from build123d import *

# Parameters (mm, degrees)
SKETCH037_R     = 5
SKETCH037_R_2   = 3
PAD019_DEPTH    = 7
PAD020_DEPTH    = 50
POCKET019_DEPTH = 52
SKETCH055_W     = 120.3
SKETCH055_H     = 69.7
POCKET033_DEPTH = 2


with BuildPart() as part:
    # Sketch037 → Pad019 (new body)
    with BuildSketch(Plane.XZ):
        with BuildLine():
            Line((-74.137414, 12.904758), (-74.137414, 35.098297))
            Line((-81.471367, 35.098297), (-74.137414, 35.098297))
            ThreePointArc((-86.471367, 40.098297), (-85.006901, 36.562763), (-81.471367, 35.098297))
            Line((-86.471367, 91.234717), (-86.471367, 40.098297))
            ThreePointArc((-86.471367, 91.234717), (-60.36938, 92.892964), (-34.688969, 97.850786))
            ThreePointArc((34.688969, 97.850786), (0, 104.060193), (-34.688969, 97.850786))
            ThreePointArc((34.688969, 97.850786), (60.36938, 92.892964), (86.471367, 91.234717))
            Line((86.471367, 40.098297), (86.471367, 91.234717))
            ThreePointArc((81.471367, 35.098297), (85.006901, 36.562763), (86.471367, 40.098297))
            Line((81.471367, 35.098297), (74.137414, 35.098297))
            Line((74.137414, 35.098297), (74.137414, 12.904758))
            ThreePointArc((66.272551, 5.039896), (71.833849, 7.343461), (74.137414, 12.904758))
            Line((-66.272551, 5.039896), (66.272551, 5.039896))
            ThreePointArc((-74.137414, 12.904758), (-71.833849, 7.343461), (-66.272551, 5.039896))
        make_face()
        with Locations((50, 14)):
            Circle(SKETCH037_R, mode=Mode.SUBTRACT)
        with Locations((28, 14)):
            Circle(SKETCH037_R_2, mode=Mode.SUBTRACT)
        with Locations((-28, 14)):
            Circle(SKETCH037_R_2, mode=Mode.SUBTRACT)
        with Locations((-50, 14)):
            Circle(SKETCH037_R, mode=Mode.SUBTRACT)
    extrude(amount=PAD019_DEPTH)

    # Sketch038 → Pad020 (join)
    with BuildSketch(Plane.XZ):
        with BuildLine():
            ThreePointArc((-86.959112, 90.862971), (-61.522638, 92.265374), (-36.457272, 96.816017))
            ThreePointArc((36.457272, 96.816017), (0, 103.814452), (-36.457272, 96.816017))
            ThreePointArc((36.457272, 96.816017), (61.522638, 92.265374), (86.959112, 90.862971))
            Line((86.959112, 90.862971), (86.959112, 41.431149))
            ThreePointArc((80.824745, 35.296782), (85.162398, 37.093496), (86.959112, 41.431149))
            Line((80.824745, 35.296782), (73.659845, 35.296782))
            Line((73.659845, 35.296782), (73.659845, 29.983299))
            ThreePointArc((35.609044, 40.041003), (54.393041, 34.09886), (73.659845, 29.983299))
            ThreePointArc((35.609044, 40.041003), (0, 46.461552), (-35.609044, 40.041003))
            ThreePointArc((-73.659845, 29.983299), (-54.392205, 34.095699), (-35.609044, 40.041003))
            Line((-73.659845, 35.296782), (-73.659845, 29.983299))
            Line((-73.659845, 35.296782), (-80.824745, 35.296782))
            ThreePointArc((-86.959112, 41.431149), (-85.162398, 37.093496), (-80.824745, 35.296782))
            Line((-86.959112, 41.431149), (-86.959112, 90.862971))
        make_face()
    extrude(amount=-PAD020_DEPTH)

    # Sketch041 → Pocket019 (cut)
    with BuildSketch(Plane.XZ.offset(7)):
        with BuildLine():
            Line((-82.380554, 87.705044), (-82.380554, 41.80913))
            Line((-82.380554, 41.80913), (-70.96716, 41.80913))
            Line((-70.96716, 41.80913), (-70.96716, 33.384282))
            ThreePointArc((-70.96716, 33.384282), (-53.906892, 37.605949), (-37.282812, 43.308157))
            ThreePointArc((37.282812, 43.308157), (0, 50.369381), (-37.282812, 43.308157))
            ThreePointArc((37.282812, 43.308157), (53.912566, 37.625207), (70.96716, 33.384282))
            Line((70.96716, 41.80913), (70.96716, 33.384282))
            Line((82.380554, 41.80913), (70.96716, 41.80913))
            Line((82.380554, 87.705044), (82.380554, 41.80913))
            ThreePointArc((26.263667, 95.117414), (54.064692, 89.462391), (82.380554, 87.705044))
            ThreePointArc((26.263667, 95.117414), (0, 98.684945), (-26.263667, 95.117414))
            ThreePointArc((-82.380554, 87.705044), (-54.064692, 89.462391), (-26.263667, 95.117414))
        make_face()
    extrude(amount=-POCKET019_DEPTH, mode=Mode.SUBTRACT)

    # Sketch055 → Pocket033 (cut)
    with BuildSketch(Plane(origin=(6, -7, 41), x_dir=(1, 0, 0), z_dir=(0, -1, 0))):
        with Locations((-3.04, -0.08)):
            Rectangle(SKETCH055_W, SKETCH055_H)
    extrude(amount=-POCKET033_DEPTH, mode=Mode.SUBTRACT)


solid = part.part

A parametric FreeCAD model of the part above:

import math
import FreeCAD as App
import Part
import Sketcher

V = App.Vector
Q = App.Units.Quantity


def add_polygon(sketch, points):
    """Adds a closed chain of lines whose ends are joined by coincident constraints."""
    first, n = sketch.GeometryCount, len(points)
    for a, b in zip(points, points[1:] + points[:1]):
        sketch.addGeometry(Part.LineSegment(App.Vector(*a, 0), App.Vector(*b, 0)), False)
    for i in range(n):
        sketch.addConstraint(Sketcher.Constraint("Coincident", first + i, 2, first + (i + 1) % n, 1))

doc = App.newDocument("Part")
params = doc.addObject("Spreadsheet::Sheet", "Params")
for row, (alias, value) in enumerate([
    ("sketch1_diameter", "10 mm"),
    ("sketch1_diameter2", "6 mm"),
    ("pad1_length", "7 mm"),
    ("pad2_length", "50 mm"),
    ("pocket1_length", "52 mm"),
    ("sketch4_width", "120.3 mm"),
    ("sketch4_height", "69.7 mm"),
    ("pocket2_length", "2 mm"),
], start=1):
    params.set(f"A{row}", alias)
    params.set(f"B{row}", "=" + value)
    params.setAlias(f"B{row}", alias)

body = doc.addObject("PartDesign::Body", "Body")

sketch1 = body.newObject("Sketcher::SketchObject", "Sketch")
sketch1.AttachmentSupport = (doc.getObject("XZ_Plane"), [""])
sketch1.MapMode = "FlatFace"
sketch1.addGeometry(Part.LineSegment(V(-74.137414, 35.098297, 0), V(-74.137414, 12.904758, 0)), False)
sketch1.addGeometry(Part.ArcOfCircle(Part.Circle(V(-66.272551, 12.904759, 0), V(0, 0, 1), 7.864863), math.radians(-179.999994), math.radians(-89.999999)), False)
sketch1.addGeometry(Part.LineSegment(V(-66.272551, 5.039896, 0), V(66.272551, 5.039896, 0)), False)
sketch1.addGeometry(Part.ArcOfCircle(Part.Circle(V(66.272551, 12.904759, 0), V(0, 0, 1), 7.864863), math.radians(-90.000001), math.radians(-0.000006)), False)
sketch1.addGeometry(Part.LineSegment(V(74.137414, 12.904758, 0), V(74.137414, 35.098297, 0)), False)
sketch1.addGeometry(Part.LineSegment(V(74.137414, 35.098297, 0), V(81.471367, 35.098297, 0)), False)
sketch1.addGeometry(Part.ArcOfCircle(Part.Circle(V(81.471367, 40.098297, 0), V(0, 0, 1), 5), math.radians(-90.000004), math.radians(0.000004)), False)
sketch1.addGeometry(Part.LineSegment(V(86.471367, 40.098297, 0), V(86.471367, 91.234717, 0)), False)
sketch1.addGeometry(Part.ArcOfCircle(Part.Circle(V(86.432353, 296.881655, 0), V(0, 0, 1), 205.646941), math.radians(-104.572965), math.radians(-89.98913)), False)
sketch1.addGeometry(Part.ArcOfCircle(Part.Circle(V(0, 4.060201, 0), V(0, 0, 1), 99.999992), math.radians(69.702806), math.radians(110.297194)), False)
sketch1.addGeometry(Part.ArcOfCircle(Part.Circle(V(-86.432353, 296.881655, 0), V(0, 0, 1), 205.646941), math.radians(-90.01087), math.radians(-75.427035)), False)
sketch1.addGeometry(Part.LineSegment(V(-86.471367, 91.234717, 0), V(-86.471367, 40.098297, 0)), False)
sketch1.addGeometry(Part.ArcOfCircle(Part.Circle(V(-81.471367, 40.098297, 0), V(0, 0, 1), 5), math.radians(179.999996), math.radians(270.000004)), False)
sketch1.addGeometry(Part.LineSegment(V(-81.471367, 35.098297, 0), V(-74.137414, 35.098297, 0)), False)
sketch1.addGeometry(Part.Circle(V(50, 14, 0), V(0, 0, 1), 5), False)
sketch1.addGeometry(Part.Circle(V(28, 14, 0), V(0, 0, 1), 3), False)
sketch1.addGeometry(Part.Circle(V(-28, 14, 0), V(0, 0, 1), 3), False)
sketch1.addGeometry(Part.Circle(V(-50, 14, 0), V(0, 0, 1), 5), False)
sketch1.addConstraint(Sketcher.Constraint("Tangent", 0, 2, 1, 1))
sketch1.addConstraint(Sketcher.Constraint("Tangent", 1, 2, 2, 1))
sketch1.addConstraint(Sketcher.Constraint("Tangent", 2, 2, 3, 1))
sketch1.addConstraint(Sketcher.Constraint("Tangent", 3, 2, 4, 1))
sketch1.addConstraint(Sketcher.Constraint("Coincident", 4, 2, 5, 1))
sketch1.addConstraint(Sketcher.Constraint("Tangent", 5, 2, 6, 1))
sketch1.addConstraint(Sketcher.Constraint("Tangent", 6, 2, 7, 1))
sketch1.addConstraint(Sketcher.Constraint("Coincident", 7, 2, 8, 2))
sketch1.addConstraint(Sketcher.Constraint("Coincident", 8, 1, 9, 1))
sketch1.addConstraint(Sketcher.Constraint("Coincident", 9, 2, 10, 2))
sketch1.addConstraint(Sketcher.Constraint("Coincident", 10, 1, 11, 1))
sketch1.addConstraint(Sketcher.Constraint("Tangent", 11, 2, 12, 1))
sketch1.addConstraint(Sketcher.Constraint("Tangent", 12, 2, 13, 1))
sketch1.addConstraint(Sketcher.Constraint("Coincident", 13, 2, 0, 1))
sketch1.addConstraint(Sketcher.Constraint("Vertical", 0))
sketch1.addConstraint(Sketcher.Constraint("Horizontal", 2))
sketch1.addConstraint(Sketcher.Constraint("Vertical", 4))
sketch1.addConstraint(Sketcher.Constraint("Horizontal", 5))
sketch1.addConstraint(Sketcher.Constraint("Vertical", 7))
sketch1.addConstraint(Sketcher.Constraint("Vertical", 11))
sketch1.addConstraint(Sketcher.Constraint("Horizontal", 13))
sketch1.addConstraint(Sketcher.Constraint("Equal", 1, 3))
sketch1.addConstraint(Sketcher.Constraint("Equal", 8, 10))
sketch1.addConstraint(Sketcher.Constraint("Equal", 6, 12))
sketch1.addConstraint(Sketcher.Constraint("Equal", 12, 14))
sketch1.addConstraint(Sketcher.Constraint("Equal", 15, 16))
sketch1.addConstraint(Sketcher.Constraint("Equal", 14, 17))
sketch1.addConstraint(Sketcher.Constraint("Symmetric", 8, 3, 10, 3, -2))
sketch1.addConstraint(Sketcher.Constraint("Symmetric", 6, 3, 12, 3, -2))
sketch1.addConstraint(Sketcher.Constraint("Symmetric", 15, 3, 16, 3, -2))
sketch1.addConstraint(Sketcher.Constraint("Symmetric", 14, 3, 17, 3, -2))
sketch1.addConstraint(Sketcher.Constraint("PointOnObject", 9, 3, -2))
sketch1.addConstraint(Sketcher.Constraint("Horizontal", 14, 3, 15, 3))
sketch1.addConstraint(Sketcher.Constraint("Equal", 5, 13))
sketch1.addConstraint(Sketcher.Constraint("Diameter", 14, Q("10 mm")))
sketch1.addConstraint(Sketcher.Constraint("Diameter", 15, Q("6 mm")))
sketch1.addConstraint(Sketcher.Constraint("DistanceX", -1, 1, 14, 3, Q("50 mm")))
sketch1.addConstraint(Sketcher.Constraint("DistanceY", -1, 1, 14, 3, Q("14 mm")))
sketch1.addConstraint(Sketcher.Constraint("DistanceX", -1, 1, 15, 3, Q("28 mm")))
sketch1.addConstraint(Sketcher.Constraint("Radius", 8, Q("205.646941 mm")))
sketch1.addConstraint(Sketcher.Constraint("Radius", 1, Q("7.864863 mm")))
sketch1.addConstraint(Sketcher.Constraint("Radius", 9, Q("99.999992 mm")))
sketch1.addConstraint(Sketcher.Constraint("DistanceY", 0, 2, 0, 1, Q("22.193539 mm")))
sketch1.addConstraint(Sketcher.Constraint("DistanceY", 7, 1, 7, 2, Q("51.13642 mm")))
sketch1.addConstraint(Sketcher.Constraint("DistanceY", -1, 1, 9, 3, Q("4.060201 mm")))
sketch1.addConstraint(Sketcher.Constraint("DistanceX", 8, 1, 6, 3, Q("46.782398 mm")))
sketch1.addConstraint(Sketcher.Constraint("DistanceX", 2, 1, 2, 2, Q("132.545102 mm")))
sketch1.addConstraint(Sketcher.Constraint("DistanceX", 5, 1, 5, 2, Q("7.333953 mm")))
sketch1.addConstraint(Sketcher.Constraint("DistanceY", -1, 1, 1, 3, Q("12.904759 mm")))
sketch1.setExpression("Constraints[34]", "Params.sketch1_diameter")
sketch1.setExpression("Constraints[35]", "Params.sketch1_diameter2")
pad1 = body.newObject("PartDesign::Pad", "Pad")
pad1.Profile = sketch1
pad1.setExpression("Length", "Params.pad1_length")

sketch2 = body.newObject("Sketcher::SketchObject", "Sketch001")
sketch2.AttachmentSupport = (doc.getObject("XZ_Plane"), [""])
sketch2.MapMode = "FlatFace"
sketch2.addGeometry(Part.ArcOfCircle(Part.Circle(V(-85.489053, 295.581133, 0), V(0, 0, 1), 204.72344), math.radians(-90.411428), math.radians(-76.142819)), False)
sketch2.addGeometry(Part.LineSegment(V(-86.959112, 90.862971, 0), V(-86.959112, 41.431149, 0)), False)
sketch2.addGeometry(Part.ArcOfCircle(Part.Circle(V(-80.824747, 41.431147, 0), V(0, 0, 1), 6.134365), math.radians(179.999984), math.radians(270.000016)), False)
sketch2.addGeometry(Part.LineSegment(V(-80.824745, 35.296782, 0), V(-73.659845, 35.296782, 0)), False)
sketch2.addGeometry(Part.LineSegment(V(-73.659845, 35.296782, 0), V(-73.659845, 29.983299, 0)), False)
sketch2.addGeometry(Part.ArcOfCircle(Part.Circle(V(-106.712415, 232.036092, 0), V(0, 0, 1), 204.738378), math.radians(-80.709623), math.radians(-69.678417)), False)
sketch2.addGeometry(Part.ArcOfCircle(Part.Circle(V(0, -55.494485, 0), V(0, 0, 1), 101.956037), math.radians(69.558013), math.radians(110.441987)), False)
sketch2.addGeometry(Part.ArcOfCircle(Part.Circle(V(106.893506, 232.721205, 0), V(0, 0, 1), 205.443751), math.radians(-110.302587), math.radians(-99.309373)), False)
sketch2.addGeometry(Part.LineSegment(V(73.659845, 29.983299, 0), V(73.659845, 35.296782, 0)), False)
sketch2.addGeometry(Part.LineSegment(V(73.659845, 35.296782, 0), V(80.824745, 35.296782, 0)), False)
sketch2.addGeometry(Part.ArcOfCircle(Part.Circle(V(80.824747, 41.431147, 0), V(0, 0, 1), 6.134365), math.radians(-90.000016), math.radians(0.000016)), False)
sketch2.addGeometry(Part.LineSegment(V(86.959112, 41.431149, 0), V(86.959112, 90.862971, 0)), False)
sketch2.addGeometry(Part.ArcOfCircle(Part.Circle(V(85.489053, 295.581133, 0), V(0, 0, 1), 204.72344), math.radians(-103.857181), math.radians(-89.588572)), False)
sketch2.addGeometry(Part.ArcOfCircle(Part.Circle(V(0, 5.355956, 0), V(0, 0, 1), 98.458496), math.radians(68.267076), math.radians(111.732924)), False)
sketch2.addConstraint(Sketcher.Constraint("Coincident", 0, 1, 1, 1))
sketch2.addConstraint(Sketcher.Constraint("Tangent", 1, 2, 2, 1))
sketch2.addConstraint(Sketcher.Constraint("Tangent", 2, 2, 3, 1))
sketch2.addConstraint(Sketcher.Constraint("Coincident", 3, 2, 4, 1))
sketch2.addConstraint(Sketcher.Constraint("Coincident", 4, 2, 5, 1))
sketch2.addConstraint(Sketcher.Constraint("Coincident", 5, 2, 6, 2))
sketch2.addConstraint(Sketcher.Constraint("Coincident", 6, 1, 7, 1))
sketch2.addConstraint(Sketcher.Constraint("Coincident", 7, 2, 8, 1))
sketch2.addConstraint(Sketcher.Constraint("Coincident", 8, 2, 9, 1))
sketch2.addConstraint(Sketcher.Constraint("Tangent", 9, 2, 10, 1))
sketch2.addConstraint(Sketcher.Constraint("Tangent", 10, 2, 11, 1))
sketch2.addConstraint(Sketcher.Constraint("Coincident", 11, 2, 12, 2))
sketch2.addConstraint(Sketcher.Constraint("Coincident", 12, 1, 13, 1))
sketch2.addConstraint(Sketcher.Constraint("Coincident", 13, 2, 0, 2))
sketch2.addConstraint(Sketcher.Constraint("Vertical", 1))
sketch2.addConstraint(Sketcher.Constraint("Horizontal", 3))
sketch2.addConstraint(Sketcher.Constraint("Vertical", 4))
sketch2.addConstraint(Sketcher.Constraint("Vertical", 8))
sketch2.addConstraint(Sketcher.Constraint("Horizontal", 9))
sketch2.addConstraint(Sketcher.Constraint("Vertical", 11))
sketch2.addConstraint(Sketcher.Constraint("Equal", 2, 10))
sketch2.addConstraint(Sketcher.Constraint("Equal", 0, 12))
sketch2.addConstraint(Sketcher.Constraint("Symmetric", 2, 3, 10, 3, -2))
sketch2.addConstraint(Sketcher.Constraint("Symmetric", 0, 3, 12, 3, -2))
sketch2.addConstraint(Sketcher.Constraint("Symmetric", 5, 2, 6, 1, -2))
sketch2.addConstraint(Sketcher.Constraint("Symmetric", 4, 2, 7, 2, -2))
sketch2.addConstraint(Sketcher.Constraint("PointOnObject", 13, 3, -2))
sketch2.addConstraint(Sketcher.Constraint("Radius", 0, Q("204.72344 mm")))
sketch2.addConstraint(Sketcher.Constraint("Radius", 5, Q("204.738378 mm")))
sketch2.addConstraint(Sketcher.Constraint("Radius", 7, Q("205.443751 mm")))
sketch2.addConstraint(Sketcher.Constraint("DistanceX", 3, 1, 3, 2, Q("7.1649 mm")))
sketch2.addConstraint(Sketcher.Constraint("Radius", 2, Q("6.134365 mm")))
sketch2.addConstraint(Sketcher.Constraint("Radius", 6, Q("101.956037 mm")))
sketch2.addConstraint(Sketcher.Constraint("Radius", 13, Q("98.458496 mm")))
sketch2.addConstraint(Sketcher.Constraint("DistanceY", -1, 1, 4, 2, Q("29.983299 mm")))
sketch2.addConstraint(Sketcher.Constraint("DistanceX", 0, 3, 10, 3, Q("166.3138 mm")))
sketch2.addConstraint(Sketcher.Constraint("DistanceX", 3, 2, 5, 2, Q("38.050801 mm")))
sketch2.addConstraint(Sketcher.Constraint("DistanceY", 1, 2, 1, 1, Q("49.431822 mm")))
sketch2.addConstraint(Sketcher.Constraint("DistanceY", 4, 2, 4, 1, Q("5.313483 mm")))
sketch2.addConstraint(Sketcher.Constraint("DistanceY", -1, 1, 5, 3, Q("232.036092 mm")))
sketch2.addConstraint(Sketcher.Constraint("DistanceX", -1, 1, 10, 2, Q("86.959112 mm")))
sketch2.addConstraint(Sketcher.Constraint("DistanceX", -1, 1, 12, 1, Q("36.457272 mm")))
pad2 = body.newObject("PartDesign::Pad", "Pad001")
pad2.Profile = sketch2
pad2.setExpression("Length", "Params.pad2_length")
pad2.Reversed = True

sketch3 = body.newObject("Sketcher::SketchObject", "Sketch002")
sketch3.AttachmentSupport = (doc.getObject("XZ_Plane"), [""])
sketch3.MapMode = "FlatFace"
sketch3.AttachmentOffset = App.Placement(V(0, 0, 7), App.Rotation())
sketch3.addGeometry(Part.LineSegment(V(-82.380554, 87.705044, 0), V(-82.380554, 41.80913, 0)), False)
sketch3.addGeometry(Part.LineSegment(V(-82.380554, 41.80913, 0), V(-70.96716, 41.80913, 0)), False)
sketch3.addGeometry(Part.LineSegment(V(-70.96716, 41.80913, 0), V(-70.96716, 33.384282, 0)), False)
sketch3.addGeometry(Part.ArcOfCircle(Part.Circle(V(-110.461396, 229.567413, 0), V(0, 0, 1), 200.119004), math.radians(-78.617744), math.radians(-68.55085)), False)
sketch3.addGeometry(Part.ArcOfCircle(Part.Circle(V(0, -51.586665, 0), V(0, 0, 1), 101.956046), math.radians(68.55085), math.radians(111.44915)), False)
sketch3.addGeometry(Part.ArcOfCircle(Part.Circle(V(111.971879, 234.694406, 0), V(0, 0, 1), 205.443795), math.radians(-111.318367), math.radians(-101.513039)), False)
sketch3.addGeometry(Part.LineSegment(V(70.96716, 33.384282, 0), V(70.96716, 41.80913, 0)), False)
sketch3.addGeometry(Part.LineSegment(V(70.96716, 41.80913, 0), V(82.380554, 41.80913, 0)), False)
sketch3.addGeometry(Part.LineSegment(V(82.380554, 41.80913, 0), V(82.380554, 87.705044, 0)), False)
sketch3.addGeometry(Part.ArcOfCircle(Part.Circle(V(80.873346, 292.422875, 0), V(0, 0, 1), 204.723379), math.radians(-105.470882), math.radians(-89.578175)), False)
sketch3.addGeometry(Part.ArcOfCircle(Part.Circle(V(0, 0.226448, 0), V(0, 0, 1), 98.458497), math.radians(74.529119), math.radians(105.470881)), False)
sketch3.addGeometry(Part.ArcOfCircle(Part.Circle(V(-80.873346, 292.422875, 0), V(0, 0, 1), 204.723379), math.radians(-90.421825), math.radians(-74.529118)), False)
sketch3.addConstraint(Sketcher.Constraint("Coincident", 0, 2, 1, 1))
sketch3.addConstraint(Sketcher.Constraint("Coincident", 1, 2, 2, 1))
sketch3.addConstraint(Sketcher.Constraint("Coincident", 2, 2, 3, 1))
sketch3.addConstraint(Sketcher.Constraint("Tangent", 3, 2, 4, 2))
sketch3.addConstraint(Sketcher.Constraint("Coincident", 4, 1, 5, 1))
sketch3.addConstraint(Sketcher.Constraint("Coincident", 5, 2, 6, 1))
sketch3.addConstraint(Sketcher.Constraint("Coincident", 6, 2, 7, 1))
sketch3.addConstraint(Sketcher.Constraint("Coincident", 7, 2, 8, 1))
sketch3.addConstraint(Sketcher.Constraint("Coincident", 8, 2, 9, 2))
sketch3.addConstraint(Sketcher.Constraint("Tangent", 9, 1, 10, 1))
sketch3.addConstraint(Sketcher.Constraint("Tangent", 10, 2, 11, 2))
sketch3.addConstraint(Sketcher.Constraint("Coincident", 11, 1, 0, 1))
sketch3.addConstraint(Sketcher.Constraint("Vertical", 0))
sketch3.addConstraint(Sketcher.Constraint("Horizontal", 1))
sketch3.addConstraint(Sketcher.Constraint("Vertical", 2))
sketch3.addConstraint(Sketcher.Constraint("Vertical", 6))
sketch3.addConstraint(Sketcher.Constraint("Horizontal", 7))
sketch3.addConstraint(Sketcher.Constraint("Vertical", 8))
sketch3.addConstraint(Sketcher.Constraint("Equal", 9, 11))
sketch3.addConstraint(Sketcher.Constraint("Symmetric", 9, 3, 11, 3, -2))
sketch3.addConstraint(Sketcher.Constraint("Symmetric", 3, 2, 4, 1, -2))
sketch3.addConstraint(Sketcher.Constraint("Symmetric", 2, 2, 5, 2, -2))
sketch3.addConstraint(Sketcher.Constraint("Symmetric", 0, 2, 7, 2, -2))
sketch3.addConstraint(Sketcher.Constraint("Radius", 9, Q("204.723379 mm")))
sketch3.addConstraint(Sketcher.Constraint("Radius", 3, Q("200.119004 mm")))
sketch3.addConstraint(Sketcher.Constraint("Radius", 4, Q("101.956046 mm")))
sketch3.addConstraint(Sketcher.Constraint("Radius", 5, Q("205.443795 mm")))
sketch3.addConstraint(Sketcher.Constraint("Radius", 10, Q("98.458497 mm")))
sketch3.addConstraint(Sketcher.Constraint("DistanceY", 2, 2, 2, 1, Q("8.424848 mm")))
sketch3.addConstraint(Sketcher.Constraint("DistanceX", 1, 1, 1, 2, Q("11.413394 mm")))
sketch3.addConstraint(Sketcher.Constraint("DistanceY", 0, 2, 0, 1, Q("45.895914 mm")))
sketch3.addConstraint(Sketcher.Constraint("DistanceX", -1, 1, 5, 3, Q("111.971879 mm")))
sketch3.addConstraint(Sketcher.Constraint("DistanceY", -1, 1, 0, 2, Q("41.80913 mm")))
sketch3.addConstraint(Sketcher.Constraint("DistanceX", 1, 2, -1, 1, Q("70.96716 mm")))
sketch3.addConstraint(Sketcher.Constraint("DistanceY", 5, 3, 9, 3, Q("57.728469 mm")))
pocket1 = body.newObject("PartDesign::Pocket", "Pocket")
pocket1.Profile = sketch3
pocket1.setExpression("Length", "Params.pocket1_length")

sketch4 = body.newObject("Sketcher::SketchObject", "Sketch003")
sketch4.AttachmentSupport = (doc.getObject("XZ_Plane"), [""])
sketch4.MapMode = "FlatFace"
sketch4.AttachmentOffset = App.Placement(V(0, 0, 7), App.Rotation())
add_polygon(sketch4, [(-57.19, 75.77), (-57.19, 6.07), (63.11, 6.07), (63.11, 75.77)])
sketch4.addConstraint(Sketcher.Constraint("Vertical", 0))
sketch4.addConstraint(Sketcher.Constraint("Horizontal", 1))
sketch4.addConstraint(Sketcher.Constraint("Vertical", 2))
sketch4.addConstraint(Sketcher.Constraint("Horizontal", 3))
sketch4.addConstraint(Sketcher.Constraint("DistanceX", 1, 1, 1, 2, Q("120.3 mm")))
sketch4.addConstraint(Sketcher.Constraint("DistanceY", 0, 2, 0, 1, Q("69.7 mm")))
sketch4.addConstraint(Sketcher.Constraint("DistanceX", 0, 2, -1, 1, Q("57.19 mm")))
sketch4.addConstraint(Sketcher.Constraint("DistanceY", -1, 1, 0, 2, Q("6.07 mm")))
sketch4.setExpression("Constraints[8]", "Params.sketch4_width")
sketch4.setExpression("Constraints[9]", "Params.sketch4_height")
pocket2 = body.newObject("PartDesign::Pocket", "Pocket001")
pocket2.Profile = sketch4
pocket2.setExpression("Length", "Params.pocket2_length")

doc.recompute()
